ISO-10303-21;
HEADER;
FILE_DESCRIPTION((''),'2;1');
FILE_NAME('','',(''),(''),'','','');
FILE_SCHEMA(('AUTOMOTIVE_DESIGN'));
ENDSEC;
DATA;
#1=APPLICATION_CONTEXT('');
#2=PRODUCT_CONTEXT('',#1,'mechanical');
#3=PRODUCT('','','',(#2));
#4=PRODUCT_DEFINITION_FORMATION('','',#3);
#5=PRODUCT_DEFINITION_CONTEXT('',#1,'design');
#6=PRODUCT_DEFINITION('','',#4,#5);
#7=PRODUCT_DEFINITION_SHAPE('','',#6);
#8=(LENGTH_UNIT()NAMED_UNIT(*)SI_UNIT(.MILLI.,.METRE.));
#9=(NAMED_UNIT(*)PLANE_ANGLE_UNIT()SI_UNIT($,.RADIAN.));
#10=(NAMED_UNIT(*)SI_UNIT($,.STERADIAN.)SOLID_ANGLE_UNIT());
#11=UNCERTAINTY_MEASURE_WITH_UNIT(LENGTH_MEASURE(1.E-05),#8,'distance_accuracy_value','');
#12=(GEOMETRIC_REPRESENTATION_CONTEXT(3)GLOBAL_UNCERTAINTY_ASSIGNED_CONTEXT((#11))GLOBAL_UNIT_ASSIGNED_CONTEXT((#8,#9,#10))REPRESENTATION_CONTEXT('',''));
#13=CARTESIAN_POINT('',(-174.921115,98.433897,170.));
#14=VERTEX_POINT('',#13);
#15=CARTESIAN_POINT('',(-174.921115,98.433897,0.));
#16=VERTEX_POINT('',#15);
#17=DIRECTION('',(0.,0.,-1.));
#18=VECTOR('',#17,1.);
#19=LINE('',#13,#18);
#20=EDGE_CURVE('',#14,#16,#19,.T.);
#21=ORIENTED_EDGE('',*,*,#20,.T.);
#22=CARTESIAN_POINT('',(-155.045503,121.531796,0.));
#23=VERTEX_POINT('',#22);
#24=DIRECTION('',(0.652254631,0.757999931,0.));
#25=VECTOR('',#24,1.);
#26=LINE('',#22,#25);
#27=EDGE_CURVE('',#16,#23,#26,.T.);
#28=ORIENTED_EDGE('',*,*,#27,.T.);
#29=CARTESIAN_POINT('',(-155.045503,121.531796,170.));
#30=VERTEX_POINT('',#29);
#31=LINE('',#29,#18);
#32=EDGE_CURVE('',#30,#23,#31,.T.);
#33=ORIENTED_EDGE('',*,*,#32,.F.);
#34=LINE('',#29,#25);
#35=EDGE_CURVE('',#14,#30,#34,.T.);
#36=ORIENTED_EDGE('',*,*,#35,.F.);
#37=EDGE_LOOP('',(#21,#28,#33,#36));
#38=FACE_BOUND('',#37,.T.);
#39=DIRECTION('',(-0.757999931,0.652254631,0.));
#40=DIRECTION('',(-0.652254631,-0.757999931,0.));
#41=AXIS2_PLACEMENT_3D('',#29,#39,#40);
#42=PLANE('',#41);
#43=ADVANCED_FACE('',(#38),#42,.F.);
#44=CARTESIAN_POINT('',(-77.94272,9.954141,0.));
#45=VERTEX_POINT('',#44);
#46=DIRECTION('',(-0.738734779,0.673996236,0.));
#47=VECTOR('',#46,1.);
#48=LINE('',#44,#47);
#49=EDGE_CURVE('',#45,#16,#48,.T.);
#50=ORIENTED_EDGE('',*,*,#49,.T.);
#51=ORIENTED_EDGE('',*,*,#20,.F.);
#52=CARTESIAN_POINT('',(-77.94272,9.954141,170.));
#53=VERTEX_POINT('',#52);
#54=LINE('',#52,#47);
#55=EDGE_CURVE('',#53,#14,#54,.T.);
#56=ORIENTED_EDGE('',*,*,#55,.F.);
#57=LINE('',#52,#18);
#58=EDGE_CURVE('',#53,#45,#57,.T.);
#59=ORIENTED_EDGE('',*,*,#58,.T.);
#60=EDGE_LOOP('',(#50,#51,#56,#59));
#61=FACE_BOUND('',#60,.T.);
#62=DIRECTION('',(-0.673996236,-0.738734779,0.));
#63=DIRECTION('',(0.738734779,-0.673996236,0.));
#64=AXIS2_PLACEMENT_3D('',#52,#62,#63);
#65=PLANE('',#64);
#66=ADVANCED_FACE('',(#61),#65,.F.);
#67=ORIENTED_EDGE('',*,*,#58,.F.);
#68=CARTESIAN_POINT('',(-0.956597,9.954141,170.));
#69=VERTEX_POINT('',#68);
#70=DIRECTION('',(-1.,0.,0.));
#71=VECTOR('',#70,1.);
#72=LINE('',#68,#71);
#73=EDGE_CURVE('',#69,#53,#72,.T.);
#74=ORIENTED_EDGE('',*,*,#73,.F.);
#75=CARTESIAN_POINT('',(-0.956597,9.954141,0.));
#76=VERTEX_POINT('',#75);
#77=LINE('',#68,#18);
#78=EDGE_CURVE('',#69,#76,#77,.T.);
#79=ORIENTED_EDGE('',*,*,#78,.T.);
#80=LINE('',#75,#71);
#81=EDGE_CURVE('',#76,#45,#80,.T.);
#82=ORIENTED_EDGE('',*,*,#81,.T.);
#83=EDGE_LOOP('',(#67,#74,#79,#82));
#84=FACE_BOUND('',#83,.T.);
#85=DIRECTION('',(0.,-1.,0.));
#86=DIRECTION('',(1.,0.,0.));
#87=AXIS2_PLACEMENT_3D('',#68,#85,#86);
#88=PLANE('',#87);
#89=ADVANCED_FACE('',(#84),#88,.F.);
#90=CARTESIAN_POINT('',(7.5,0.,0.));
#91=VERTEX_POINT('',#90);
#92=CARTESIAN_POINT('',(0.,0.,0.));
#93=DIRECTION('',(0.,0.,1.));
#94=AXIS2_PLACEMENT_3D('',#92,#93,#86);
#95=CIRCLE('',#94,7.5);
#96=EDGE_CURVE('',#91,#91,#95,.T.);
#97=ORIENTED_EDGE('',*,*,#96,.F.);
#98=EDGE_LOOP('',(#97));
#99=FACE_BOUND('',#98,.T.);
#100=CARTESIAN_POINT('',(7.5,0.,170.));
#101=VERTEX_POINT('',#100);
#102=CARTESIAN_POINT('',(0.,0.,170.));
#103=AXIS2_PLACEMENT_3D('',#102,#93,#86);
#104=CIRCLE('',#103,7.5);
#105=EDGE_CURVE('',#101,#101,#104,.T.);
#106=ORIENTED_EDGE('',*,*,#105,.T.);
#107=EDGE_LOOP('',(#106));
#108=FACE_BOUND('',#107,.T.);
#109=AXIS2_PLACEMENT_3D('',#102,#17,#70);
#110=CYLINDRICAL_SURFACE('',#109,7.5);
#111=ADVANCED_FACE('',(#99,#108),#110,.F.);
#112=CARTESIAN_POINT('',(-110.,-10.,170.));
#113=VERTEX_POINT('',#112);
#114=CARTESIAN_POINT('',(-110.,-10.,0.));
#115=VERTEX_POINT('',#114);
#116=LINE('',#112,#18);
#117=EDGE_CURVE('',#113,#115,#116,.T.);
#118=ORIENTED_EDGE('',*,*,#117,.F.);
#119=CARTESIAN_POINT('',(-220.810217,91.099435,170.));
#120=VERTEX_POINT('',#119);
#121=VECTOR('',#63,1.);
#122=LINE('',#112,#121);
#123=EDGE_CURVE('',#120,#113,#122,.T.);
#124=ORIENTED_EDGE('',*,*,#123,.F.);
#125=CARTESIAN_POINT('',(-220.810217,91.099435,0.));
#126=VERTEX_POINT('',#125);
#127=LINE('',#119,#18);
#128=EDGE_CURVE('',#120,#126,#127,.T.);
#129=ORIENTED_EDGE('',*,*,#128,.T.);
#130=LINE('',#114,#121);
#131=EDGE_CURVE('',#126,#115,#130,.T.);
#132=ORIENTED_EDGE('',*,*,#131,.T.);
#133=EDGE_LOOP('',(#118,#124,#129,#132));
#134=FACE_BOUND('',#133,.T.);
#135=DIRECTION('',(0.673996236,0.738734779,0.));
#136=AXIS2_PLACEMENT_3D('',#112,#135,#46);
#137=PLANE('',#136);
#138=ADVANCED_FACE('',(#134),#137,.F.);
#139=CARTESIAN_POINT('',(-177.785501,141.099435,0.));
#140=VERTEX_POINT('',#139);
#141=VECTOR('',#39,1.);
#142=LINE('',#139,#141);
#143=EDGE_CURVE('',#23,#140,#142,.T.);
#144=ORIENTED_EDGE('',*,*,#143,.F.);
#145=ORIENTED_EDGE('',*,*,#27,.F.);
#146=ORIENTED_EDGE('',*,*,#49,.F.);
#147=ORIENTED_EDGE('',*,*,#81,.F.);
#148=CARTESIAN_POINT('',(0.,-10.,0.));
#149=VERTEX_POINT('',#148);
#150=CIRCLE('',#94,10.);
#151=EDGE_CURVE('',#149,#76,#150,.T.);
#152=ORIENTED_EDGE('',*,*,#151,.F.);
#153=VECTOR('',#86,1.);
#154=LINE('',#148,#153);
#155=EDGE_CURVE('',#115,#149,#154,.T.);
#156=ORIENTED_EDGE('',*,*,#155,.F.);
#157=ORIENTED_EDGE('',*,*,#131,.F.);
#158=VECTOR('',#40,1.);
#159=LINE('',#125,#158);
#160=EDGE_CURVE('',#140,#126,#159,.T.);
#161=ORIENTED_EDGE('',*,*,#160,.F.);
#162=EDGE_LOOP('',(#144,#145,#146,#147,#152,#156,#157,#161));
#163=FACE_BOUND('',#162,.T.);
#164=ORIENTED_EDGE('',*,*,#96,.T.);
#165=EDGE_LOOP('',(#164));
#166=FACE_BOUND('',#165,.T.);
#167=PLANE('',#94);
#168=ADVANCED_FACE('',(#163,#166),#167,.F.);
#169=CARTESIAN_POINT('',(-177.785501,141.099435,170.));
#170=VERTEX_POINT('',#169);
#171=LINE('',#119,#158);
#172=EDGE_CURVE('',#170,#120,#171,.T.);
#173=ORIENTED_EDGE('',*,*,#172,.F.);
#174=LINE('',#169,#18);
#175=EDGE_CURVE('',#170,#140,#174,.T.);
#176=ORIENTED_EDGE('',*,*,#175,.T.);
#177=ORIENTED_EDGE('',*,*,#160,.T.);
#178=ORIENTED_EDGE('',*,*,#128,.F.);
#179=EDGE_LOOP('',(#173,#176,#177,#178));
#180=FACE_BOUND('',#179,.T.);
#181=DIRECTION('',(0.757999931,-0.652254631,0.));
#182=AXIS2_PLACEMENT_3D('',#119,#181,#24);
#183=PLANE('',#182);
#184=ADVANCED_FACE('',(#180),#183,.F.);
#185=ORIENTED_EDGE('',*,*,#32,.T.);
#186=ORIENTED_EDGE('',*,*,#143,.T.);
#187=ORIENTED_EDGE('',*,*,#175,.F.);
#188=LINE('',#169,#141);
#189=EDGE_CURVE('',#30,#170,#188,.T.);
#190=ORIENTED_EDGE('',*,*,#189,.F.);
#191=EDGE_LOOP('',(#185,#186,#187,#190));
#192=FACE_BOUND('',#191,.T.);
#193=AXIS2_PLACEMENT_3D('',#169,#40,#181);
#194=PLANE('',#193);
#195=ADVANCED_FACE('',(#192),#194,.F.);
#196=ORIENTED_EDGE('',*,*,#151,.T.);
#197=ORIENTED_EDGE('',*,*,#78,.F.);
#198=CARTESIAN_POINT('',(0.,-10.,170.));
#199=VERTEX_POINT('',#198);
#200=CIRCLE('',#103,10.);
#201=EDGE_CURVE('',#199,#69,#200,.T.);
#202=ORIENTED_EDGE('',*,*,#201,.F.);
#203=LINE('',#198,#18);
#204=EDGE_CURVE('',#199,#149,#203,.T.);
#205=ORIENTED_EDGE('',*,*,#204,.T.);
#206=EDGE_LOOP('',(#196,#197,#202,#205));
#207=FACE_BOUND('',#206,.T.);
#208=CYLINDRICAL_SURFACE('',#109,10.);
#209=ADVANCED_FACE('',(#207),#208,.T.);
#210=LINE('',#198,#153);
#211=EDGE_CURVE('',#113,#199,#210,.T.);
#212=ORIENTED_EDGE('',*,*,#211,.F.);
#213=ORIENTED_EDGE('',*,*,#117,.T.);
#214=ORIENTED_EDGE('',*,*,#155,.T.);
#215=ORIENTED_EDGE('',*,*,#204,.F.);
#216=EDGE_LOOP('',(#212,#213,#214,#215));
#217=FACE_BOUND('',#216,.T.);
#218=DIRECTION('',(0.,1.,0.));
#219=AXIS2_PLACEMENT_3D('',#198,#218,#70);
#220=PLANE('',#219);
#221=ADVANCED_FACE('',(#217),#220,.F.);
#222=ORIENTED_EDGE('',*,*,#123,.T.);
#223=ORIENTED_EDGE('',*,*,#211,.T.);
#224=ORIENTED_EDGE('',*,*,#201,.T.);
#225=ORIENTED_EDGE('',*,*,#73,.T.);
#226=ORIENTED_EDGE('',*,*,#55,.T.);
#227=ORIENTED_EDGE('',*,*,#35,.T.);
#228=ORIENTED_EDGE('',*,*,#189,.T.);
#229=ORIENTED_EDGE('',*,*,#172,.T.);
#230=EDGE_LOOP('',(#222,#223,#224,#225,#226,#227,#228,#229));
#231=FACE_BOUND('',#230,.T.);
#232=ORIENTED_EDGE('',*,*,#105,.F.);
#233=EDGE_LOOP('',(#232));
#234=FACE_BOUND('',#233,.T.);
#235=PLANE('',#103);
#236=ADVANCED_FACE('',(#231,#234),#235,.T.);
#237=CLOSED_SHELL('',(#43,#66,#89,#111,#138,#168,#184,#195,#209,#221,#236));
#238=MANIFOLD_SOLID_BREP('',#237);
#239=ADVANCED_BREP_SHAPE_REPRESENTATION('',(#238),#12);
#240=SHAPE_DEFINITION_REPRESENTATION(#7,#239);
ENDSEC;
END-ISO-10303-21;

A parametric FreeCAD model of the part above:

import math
import FreeCAD as App
import Part
import Sketcher
Q = App.Units.Quantity

doc = App.newDocument("Part")
body = doc.addObject("PartDesign::Body", "Body")

# Sketch on XY plane
sketch1 = body.newObject("Sketcher::SketchObject", "Sketch")
sketch1.AttachmentSupport = (doc.getObject("XY_Plane"), [""])
sketch1.MapMode = "FlatFace"
sketch1.addGeometry([
    Part.LineSegment(App.Vector(-110, -10, 0), App.Vector(0, -10, 0)),  # 0
    Part.ArcOfCircle(Part.Circle(App.Vector(0, 0, 0), App.Vector(0, 0, 1), 10), math.radians(-90), math.radians(95)),  # 1
    Part.LineSegment(App.Vector(-1, 10, 0), App.Vector(-78, 10, 0)),  # 2
    Part.LineSegment(App.Vector(-78, 10, 0), App.Vector(-175, 98, 0)),  # 3
    Part.LineSegment(App.Vector(-175, 98, 0), App.Vector(-155, 122, 0)),  # 4
    Part.LineSegment(App.Vector(-155, 122, 0), App.Vector(-178, 141, 0)),  # 5
    Part.LineSegment(App.Vector(-178, 141, 0), App.Vector(-221, 91, 0)),  # 6
    Part.LineSegment(App.Vector(-221, 91, 0), App.Vector(-110, -10, 0)),  # 7
    Part.Circle(App.Vector(0, 0, 0), App.Vector(0, 0, 1), 8),  # 8
], False)
sketch1.addConstraint([
    Sketcher.Constraint("Tangent", 0, 2, 1, 1),
    Sketcher.Constraint("Coincident", 1, 2, 2, 1),
    Sketcher.Constraint("Coincident", 2, 2, 3, 1),
    Sketcher.Constraint("Coincident", 3, 2, 4, 1),
    Sketcher.Constraint("Coincident", 4, 2, 5, 1),
    Sketcher.Constraint("Coincident", 5, 2, 6, 1),
    Sketcher.Constraint("Coincident", 6, 2, 7, 1),
    Sketcher.Constraint("Coincident", 7, 2, 0, 1),
    Sketcher.Constraint("Horizontal", 0),
    Sketcher.Constraint("Horizontal", 2),
    Sketcher.Constraint("Coincident", 1, 3, -1, 1),
    Sketcher.Constraint("Coincident", 8, 3, -1, 1),
    Sketcher.Constraint("Perpendicular", 4, 5),
    Sketcher.Constraint("Perpendicular", 5, 6),
    Sketcher.Constraint("Parallel", 3, 7),
    Sketcher.Constraint("Diameter", 8, Q("15 mm")),
    Sketcher.Constraint("Radius", 1, Q("10 mm")),
    Sketcher.Constraint("DistanceX", 0, 1, 0, 2, Q("110 mm")),
    Sketcher.Constraint("Distance", 5, Q("30 mm")),
    Sketcher.Constraint("Distance", 7, Q("150 mm")),
    Sketcher.Constraint("DistanceY", 6, 2, 5, 2, Q("50 mm")),
    Sketcher.Constraint("DistanceX", 5, 2, -1, 1, Q("177.785501 mm")),
    Sketcher.Constraint("DistanceY", 3, 2, 4, 2, Q("23.0979 mm")),
    Sketcher.Constraint("DistanceX", 2, 2, 2, 1, Q("76.986123 mm")),
    Sketcher.Constraint("DistanceY", -1, 1, 1, 2, Q("9.954141 mm")),
])
pad1 = body.newObject("PartDesign::Pad", "Pad")
pad1.Profile = sketch1
pad1.Length = 170

doc.recompute()
